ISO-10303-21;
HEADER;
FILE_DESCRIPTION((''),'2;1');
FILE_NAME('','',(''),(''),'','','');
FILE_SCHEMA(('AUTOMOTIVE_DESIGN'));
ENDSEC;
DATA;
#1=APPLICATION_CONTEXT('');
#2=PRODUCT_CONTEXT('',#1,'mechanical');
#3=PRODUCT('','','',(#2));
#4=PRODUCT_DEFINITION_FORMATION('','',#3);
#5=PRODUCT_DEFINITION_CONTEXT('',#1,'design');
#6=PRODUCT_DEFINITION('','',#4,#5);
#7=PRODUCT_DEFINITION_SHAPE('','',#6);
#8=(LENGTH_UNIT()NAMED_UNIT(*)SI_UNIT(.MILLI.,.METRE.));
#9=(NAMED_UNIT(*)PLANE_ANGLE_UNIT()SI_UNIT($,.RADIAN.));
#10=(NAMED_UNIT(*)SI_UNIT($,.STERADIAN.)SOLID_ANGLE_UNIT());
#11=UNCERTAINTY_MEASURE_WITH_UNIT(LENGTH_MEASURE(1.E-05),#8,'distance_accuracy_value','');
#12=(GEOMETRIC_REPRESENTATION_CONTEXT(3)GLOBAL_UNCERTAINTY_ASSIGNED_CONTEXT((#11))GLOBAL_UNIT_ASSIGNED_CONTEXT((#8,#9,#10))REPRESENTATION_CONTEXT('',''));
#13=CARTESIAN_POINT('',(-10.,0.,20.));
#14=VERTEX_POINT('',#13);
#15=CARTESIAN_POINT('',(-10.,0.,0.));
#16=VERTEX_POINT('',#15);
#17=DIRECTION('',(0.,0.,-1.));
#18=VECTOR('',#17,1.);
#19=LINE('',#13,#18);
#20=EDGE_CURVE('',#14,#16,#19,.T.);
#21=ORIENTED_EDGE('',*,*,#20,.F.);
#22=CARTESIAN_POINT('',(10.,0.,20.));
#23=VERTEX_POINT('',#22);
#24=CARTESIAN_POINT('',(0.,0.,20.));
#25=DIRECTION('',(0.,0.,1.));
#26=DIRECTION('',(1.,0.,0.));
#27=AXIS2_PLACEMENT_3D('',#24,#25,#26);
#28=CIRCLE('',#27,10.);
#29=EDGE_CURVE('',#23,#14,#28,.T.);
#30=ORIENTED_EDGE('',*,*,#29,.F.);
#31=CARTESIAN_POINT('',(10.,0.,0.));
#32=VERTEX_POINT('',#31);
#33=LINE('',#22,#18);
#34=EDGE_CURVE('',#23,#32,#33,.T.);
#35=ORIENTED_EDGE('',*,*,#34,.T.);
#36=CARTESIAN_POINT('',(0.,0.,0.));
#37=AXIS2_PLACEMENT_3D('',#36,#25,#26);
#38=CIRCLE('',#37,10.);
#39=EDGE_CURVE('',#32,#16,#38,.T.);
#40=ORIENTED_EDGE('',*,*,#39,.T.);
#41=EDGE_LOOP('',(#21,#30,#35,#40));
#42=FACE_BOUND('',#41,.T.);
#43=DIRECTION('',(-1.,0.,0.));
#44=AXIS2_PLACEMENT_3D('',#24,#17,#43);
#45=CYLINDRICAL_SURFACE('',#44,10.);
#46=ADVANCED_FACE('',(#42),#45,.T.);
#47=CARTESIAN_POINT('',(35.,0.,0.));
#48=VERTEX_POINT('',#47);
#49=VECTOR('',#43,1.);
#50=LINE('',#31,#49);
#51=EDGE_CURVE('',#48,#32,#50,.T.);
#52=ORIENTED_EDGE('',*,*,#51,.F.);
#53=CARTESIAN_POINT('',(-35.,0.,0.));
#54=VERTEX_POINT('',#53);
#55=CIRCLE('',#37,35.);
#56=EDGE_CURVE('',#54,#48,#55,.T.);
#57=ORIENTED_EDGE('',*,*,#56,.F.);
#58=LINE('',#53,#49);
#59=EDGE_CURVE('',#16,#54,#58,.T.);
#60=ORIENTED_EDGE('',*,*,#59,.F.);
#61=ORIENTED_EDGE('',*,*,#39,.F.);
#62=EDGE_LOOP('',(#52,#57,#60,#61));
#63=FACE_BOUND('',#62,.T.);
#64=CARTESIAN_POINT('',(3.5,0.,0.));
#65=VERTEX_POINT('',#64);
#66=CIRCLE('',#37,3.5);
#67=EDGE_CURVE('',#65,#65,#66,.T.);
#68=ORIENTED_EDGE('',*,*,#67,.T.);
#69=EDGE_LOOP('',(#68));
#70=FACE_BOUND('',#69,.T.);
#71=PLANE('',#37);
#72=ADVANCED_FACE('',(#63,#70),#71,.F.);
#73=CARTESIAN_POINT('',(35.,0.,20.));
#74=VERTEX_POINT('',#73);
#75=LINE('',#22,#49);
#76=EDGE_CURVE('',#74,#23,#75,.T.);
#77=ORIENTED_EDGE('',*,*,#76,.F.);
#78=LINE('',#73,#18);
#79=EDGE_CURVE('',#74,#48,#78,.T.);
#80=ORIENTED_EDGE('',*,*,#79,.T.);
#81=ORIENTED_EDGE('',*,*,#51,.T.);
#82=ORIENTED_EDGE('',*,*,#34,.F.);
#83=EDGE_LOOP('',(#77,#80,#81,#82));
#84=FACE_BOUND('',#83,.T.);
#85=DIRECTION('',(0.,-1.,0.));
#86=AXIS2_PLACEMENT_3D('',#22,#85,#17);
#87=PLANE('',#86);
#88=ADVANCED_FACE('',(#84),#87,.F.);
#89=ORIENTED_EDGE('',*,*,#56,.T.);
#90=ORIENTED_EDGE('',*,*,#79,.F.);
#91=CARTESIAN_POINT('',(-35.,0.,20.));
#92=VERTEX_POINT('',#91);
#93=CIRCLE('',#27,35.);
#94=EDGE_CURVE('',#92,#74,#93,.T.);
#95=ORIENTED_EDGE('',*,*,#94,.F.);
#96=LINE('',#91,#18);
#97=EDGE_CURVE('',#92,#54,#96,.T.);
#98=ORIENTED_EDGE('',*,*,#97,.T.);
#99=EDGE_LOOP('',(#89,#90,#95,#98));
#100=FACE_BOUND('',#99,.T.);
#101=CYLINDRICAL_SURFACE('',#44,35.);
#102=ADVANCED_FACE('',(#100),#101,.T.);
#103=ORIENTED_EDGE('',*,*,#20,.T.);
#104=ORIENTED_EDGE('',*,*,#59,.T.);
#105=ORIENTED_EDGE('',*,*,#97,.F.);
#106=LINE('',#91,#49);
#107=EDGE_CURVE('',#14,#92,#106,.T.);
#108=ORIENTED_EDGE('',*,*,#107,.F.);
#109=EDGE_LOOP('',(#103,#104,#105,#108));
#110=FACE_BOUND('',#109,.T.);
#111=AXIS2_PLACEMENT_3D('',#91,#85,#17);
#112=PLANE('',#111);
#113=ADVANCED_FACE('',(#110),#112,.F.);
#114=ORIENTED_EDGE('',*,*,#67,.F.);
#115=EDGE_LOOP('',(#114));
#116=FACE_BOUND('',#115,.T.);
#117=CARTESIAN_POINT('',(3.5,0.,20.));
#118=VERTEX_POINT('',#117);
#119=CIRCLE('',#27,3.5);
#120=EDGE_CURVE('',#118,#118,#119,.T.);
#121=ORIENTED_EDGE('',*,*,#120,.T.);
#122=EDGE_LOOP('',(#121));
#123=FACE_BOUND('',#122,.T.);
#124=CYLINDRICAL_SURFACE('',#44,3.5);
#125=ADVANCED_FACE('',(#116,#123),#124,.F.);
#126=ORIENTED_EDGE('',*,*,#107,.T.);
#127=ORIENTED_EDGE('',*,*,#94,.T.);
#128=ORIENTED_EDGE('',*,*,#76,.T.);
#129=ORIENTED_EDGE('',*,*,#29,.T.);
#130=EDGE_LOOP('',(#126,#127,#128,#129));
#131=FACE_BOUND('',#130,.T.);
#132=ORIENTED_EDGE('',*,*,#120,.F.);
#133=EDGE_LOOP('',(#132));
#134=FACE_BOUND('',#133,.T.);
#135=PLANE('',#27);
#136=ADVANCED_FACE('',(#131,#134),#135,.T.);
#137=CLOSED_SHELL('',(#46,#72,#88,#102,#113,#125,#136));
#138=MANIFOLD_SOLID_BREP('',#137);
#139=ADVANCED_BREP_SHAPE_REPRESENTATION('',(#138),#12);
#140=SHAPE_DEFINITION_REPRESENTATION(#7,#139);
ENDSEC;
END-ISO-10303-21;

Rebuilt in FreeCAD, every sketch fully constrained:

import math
import FreeCAD as App
import Part
import Sketcher
from FreeCAD import Vector

doc = App.newDocument("Part")
params = doc.addObject("Spreadsheet::Sheet", "Params")
for row, (alias, value) in enumerate([
    ("sketch1_diameter", "7 mm"),
    ("sketch1_radius", "35 mm"),
    ("sketch1_radius2", "10 mm"),
    ("pad1_length", "20 mm"),
], start=1):
    params.set(f"A{row}", alias)
    params.set(f"B{row}", "=" + value)
    params.setAlias(f"B{row}", alias)

body = doc.addObject("PartDesign::Body", "Body")

sketch1 = body.newObject("Sketcher::SketchObject", "Sketch")
sketch1.AttachmentSupport = (doc.getObject("XY_Plane"), [""])
sketch1.MapMode = "FlatFace"
sketch1.addGeometry([
    Part.LineSegment(Vector(-10, 0, 0), Vector(-35, 0, 0)),
    Part.ArcOfCircle(Part.Circle(Vector(0, 0, 0), Vector(0, 0, 1), 35), math.radians(180), math.radians(360)),
    Part.LineSegment(Vector(35, 0, 0), Vector(10, 0, 0)),
    Part.ArcOfCircle(Part.Circle(Vector(0, 0, 0), Vector(0, 0, 1), 10), math.radians(0), math.radians(180)),
    Part.Circle(Vector(0, 0, 0), Vector(0, 0, 1), 3.5),
], False)
sketch1.addConstraint([
    Sketcher.Constraint("Coincident", 0, 2, 1, 1),
    Sketcher.Constraint("Coincident", 1, 2, 2, 1),
    Sketcher.Constraint("Coincident", 2, 2, 3, 1),
    Sketcher.Constraint("Coincident", 3, 2, 0, 1),
    Sketcher.Constraint("Horizontal", 0),
    Sketcher.Constraint("Horizontal", 2),
    Sketcher.Constraint("Coincident", 1, 3, -1, 1),
    Sketcher.Constraint("Coincident", 3, 3, -1, 1),
    Sketcher.Constraint("Coincident", 4, 3, -1, 1),
    Sketcher.Constraint("PointOnObject", 0, 2, -1),
    Sketcher.Constraint("PointOnObject", 1, 2, -1),
    Sketcher.Constraint("Diameter", 4, 7.0),
    Sketcher.Constraint("Radius", 1, 35.0),
    Sketcher.Constraint("Radius", 3, 10.0),
])
sketch1.setExpression("Constraints[11]", "Params.sketch1_diameter")
sketch1.setExpression("Constraints[12]", "Params.sketch1_radius")
sketch1.setExpression("Constraints[13]", "Params.sketch1_radius2")
pad1 = body.newObject("PartDesign::Pad", "Pad")
pad1.Profile = sketch1
pad1.setExpression("Length", "Params.pad1_length")

doc.recompute()
